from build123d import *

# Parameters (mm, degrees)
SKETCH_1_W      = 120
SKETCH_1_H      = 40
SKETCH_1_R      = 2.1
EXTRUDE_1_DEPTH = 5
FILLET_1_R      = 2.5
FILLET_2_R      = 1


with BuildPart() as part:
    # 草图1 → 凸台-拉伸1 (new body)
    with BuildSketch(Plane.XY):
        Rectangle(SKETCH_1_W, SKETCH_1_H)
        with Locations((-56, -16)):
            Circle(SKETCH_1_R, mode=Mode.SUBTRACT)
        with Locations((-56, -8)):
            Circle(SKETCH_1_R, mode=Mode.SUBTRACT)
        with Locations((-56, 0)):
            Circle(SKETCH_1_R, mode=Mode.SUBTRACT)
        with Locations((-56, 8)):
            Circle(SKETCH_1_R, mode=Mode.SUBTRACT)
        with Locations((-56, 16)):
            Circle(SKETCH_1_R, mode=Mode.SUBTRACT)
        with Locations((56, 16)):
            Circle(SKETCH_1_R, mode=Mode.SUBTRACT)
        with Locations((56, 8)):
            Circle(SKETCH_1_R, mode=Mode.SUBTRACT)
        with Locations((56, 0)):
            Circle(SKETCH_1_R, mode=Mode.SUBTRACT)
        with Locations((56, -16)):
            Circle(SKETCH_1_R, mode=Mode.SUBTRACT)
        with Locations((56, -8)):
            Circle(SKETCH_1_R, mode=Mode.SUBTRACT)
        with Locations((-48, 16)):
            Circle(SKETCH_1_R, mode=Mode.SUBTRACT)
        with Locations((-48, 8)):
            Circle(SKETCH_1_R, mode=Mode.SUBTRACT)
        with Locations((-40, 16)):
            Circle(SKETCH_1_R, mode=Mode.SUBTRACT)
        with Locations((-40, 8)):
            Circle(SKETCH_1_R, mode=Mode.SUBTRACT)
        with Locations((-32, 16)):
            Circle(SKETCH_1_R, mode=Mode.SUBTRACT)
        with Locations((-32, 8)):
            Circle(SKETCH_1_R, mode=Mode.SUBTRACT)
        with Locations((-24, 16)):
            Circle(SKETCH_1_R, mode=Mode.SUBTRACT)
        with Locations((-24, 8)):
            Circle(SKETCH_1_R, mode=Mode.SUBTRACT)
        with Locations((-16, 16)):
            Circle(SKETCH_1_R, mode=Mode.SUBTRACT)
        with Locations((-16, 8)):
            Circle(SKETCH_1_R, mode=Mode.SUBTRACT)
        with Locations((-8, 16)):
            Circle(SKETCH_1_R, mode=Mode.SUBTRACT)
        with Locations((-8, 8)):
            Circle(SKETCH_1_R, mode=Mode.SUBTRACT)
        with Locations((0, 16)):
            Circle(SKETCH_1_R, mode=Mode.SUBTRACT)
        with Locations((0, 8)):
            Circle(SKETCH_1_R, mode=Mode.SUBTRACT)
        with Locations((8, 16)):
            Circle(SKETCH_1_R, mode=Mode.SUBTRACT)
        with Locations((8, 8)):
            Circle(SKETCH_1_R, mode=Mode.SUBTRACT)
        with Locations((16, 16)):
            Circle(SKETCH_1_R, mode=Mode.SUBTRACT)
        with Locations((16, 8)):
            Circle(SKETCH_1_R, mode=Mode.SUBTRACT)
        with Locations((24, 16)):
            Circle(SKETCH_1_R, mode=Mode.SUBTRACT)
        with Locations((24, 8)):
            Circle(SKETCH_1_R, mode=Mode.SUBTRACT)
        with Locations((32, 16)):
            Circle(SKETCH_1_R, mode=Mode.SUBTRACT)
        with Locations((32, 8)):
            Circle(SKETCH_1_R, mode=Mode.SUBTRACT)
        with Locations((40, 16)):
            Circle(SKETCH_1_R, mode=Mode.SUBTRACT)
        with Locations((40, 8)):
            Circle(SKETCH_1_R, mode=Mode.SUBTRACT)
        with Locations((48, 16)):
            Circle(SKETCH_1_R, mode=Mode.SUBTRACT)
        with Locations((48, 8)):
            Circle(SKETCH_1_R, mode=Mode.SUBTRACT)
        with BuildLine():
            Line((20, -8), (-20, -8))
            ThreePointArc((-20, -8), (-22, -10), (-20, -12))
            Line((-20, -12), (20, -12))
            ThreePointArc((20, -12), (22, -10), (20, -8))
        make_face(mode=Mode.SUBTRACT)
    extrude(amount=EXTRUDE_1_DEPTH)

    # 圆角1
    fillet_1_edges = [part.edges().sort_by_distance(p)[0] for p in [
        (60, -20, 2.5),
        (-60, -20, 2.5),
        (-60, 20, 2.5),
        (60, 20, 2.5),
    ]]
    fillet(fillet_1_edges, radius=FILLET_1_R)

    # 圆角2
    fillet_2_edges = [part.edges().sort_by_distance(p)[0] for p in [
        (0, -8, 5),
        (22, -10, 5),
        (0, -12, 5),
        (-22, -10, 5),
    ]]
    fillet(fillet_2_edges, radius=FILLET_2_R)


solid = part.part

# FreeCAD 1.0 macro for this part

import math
import FreeCAD as App
import Part
import Sketcher

V = App.Vector


def edges_at(feature, points):
    """Names of the edges that pass closest to the given points."""
    edges = feature.Shape.Edges
    near = lambda p: min(range(len(edges)), key=lambda i: edges[i].distToShape(Part.Vertex(*p))[0])
    return sorted({f"Edge{near(p) + 1}" for p in points})

doc = App.newDocument("Part")
body = doc.addObject("PartDesign::Body", "Body")

# Sketch on XY plane
sketch1 = body.newObject("Sketcher::SketchObject", "Sketch")
sketch1.AttachmentSupport = (doc.getObject("XY_Plane"), [""])
sketch1.MapMode = "FlatFace"
sketch1.addGeometry([
    Part.LineSegment(V(-60, 20, 0), V(-60, -20, 0)),  # 0
    Part.LineSegment(V(-60, -20, 0), V(60, -20, 0)),  # 1
    Part.LineSegment(V(60, -20, 0), V(60, 20, 0)),  # 2
    Part.LineSegment(V(60, 20, 0), V(-60, 20, 0)),  # 3
    Part.Circle(V(-56, -16, 0), V(0, 0, 1), 2.1),  # 4
    Part.LineSegment(V(-20, -8, 0), V(20, -8, 0)),  # 5
    Part.ArcOfCircle(Part.Circle(V(20, -10, 0), V(0, 0, 1), 2), math.radians(-90), math.radians(90)),  # 6
    Part.LineSegment(V(20, -12, 0), V(-20, -12, 0)),  # 7
    Part.ArcOfCircle(Part.Circle(V(-20, -10, 0), V(0, 0, 1), 2), math.radians(90), math.radians(270)),  # 8
    Part.Circle(V(-56, -8, 0), V(0, 0, 1), 2.1),  # 9
    Part.Circle(V(56, -16, 0), V(0, 0, 1), 2.1),  # 10
    Part.Circle(V(56, -8, 0), V(0, 0, 1), 2.1),  # 11
    Part.Circle(V(-56, 0, 0), V(0, 0, 1), 2.1),  # 12
    Part.Circle(V(-56, 8, 0), V(0, 0, 1), 2.1),  # 13
    Part.Circle(V(-48, 8, 0), V(0, 0, 1), 2.1),  # 14
    Part.Circle(V(-40, 8, 0), V(0, 0, 1), 2.1),  # 15
    Part.Circle(V(-32, 8, 0), V(0, 0, 1), 2.1),  # 16
    Part.Circle(V(-24, 8, 0), V(0, 0, 1), 2.1),  # 17
    Part.Circle(V(-16, 8, 0), V(0, 0, 1), 2.1),  # 18
    Part.Circle(V(-8, 8, 0), V(0, 0, 1), 2.1),  # 19
    Part.Circle(V(0, 8, 0), V(0, 0, 1), 2.1),  # 20
    Part.Circle(V(-56, 16, 0), V(0, 0, 1), 2.1),  # 21
    Part.Circle(V(-48, 16, 0), V(0, 0, 1), 2.1),  # 22
    Part.Circle(V(-40, 16, 0), V(0, 0, 1), 2.1),  # 23
    Part.Circle(V(-32, 16, 0), V(0, 0, 1), 2.1),  # 24
    Part.Circle(V(-24, 16, 0), V(0, 0, 1), 2.1),  # 25
    Part.Circle(V(-16, 16, 0), V(0, 0, 1), 2.1),  # 26
    Part.Circle(V(-8, 16, 0), V(0, 0, 1), 2.1),  # 27
    Part.Circle(V(0, 16, 0), V(0, 0, 1), 2.1),  # 28
    Part.Circle(V(8, 8, 0), V(0, 0, 1), 2.1),  # 29
    Part.Circle(V(16, 8, 0), V(0, 0, 1), 2.1),  # 30
    Part.Circle(V(24, 8, 0), V(0, 0, 1), 2.1),  # 31
    Part.Circle(V(56, 0, 0), V(0, 0, 1), 2.1),  # 32
    Part.Circle(V(32, 8, 0), V(0, 0, 1), 2.1),  # 33
    Part.Circle(V(40, 8, 0), V(0, 0, 1), 2.1),  # 34
    Part.Circle(V(48, 8, 0), V(0, 0, 1), 2.1),  # 35
    Part.Circle(V(56, 8, 0), V(0, 0, 1), 2.1),  # 36
    Part.Circle(V(8, 16, 0), V(0, 0, 1), 2.1),  # 37
    Part.Circle(V(16, 16, 0), V(0, 0, 1), 2.1),  # 38
    Part.Circle(V(24, 16, 0), V(0, 0, 1), 2.1),  # 39
    Part.Circle(V(32, 16, 0), V(0, 0, 1), 2.1),  # 40
    Part.Circle(V(40, 16, 0), V(0, 0, 1), 2.1),  # 41
    Part.Circle(V(48, 16, 0), V(0, 0, 1), 2.1),  # 42
    Part.Circle(V(56, 16, 0), V(0, 0, 1), 2.1),  # 43
], False)
sketch1.addConstraint([
    Sketcher.Constraint("Coincident", 0, 2, 1, 1),
    Sketcher.Constraint("Coincident", 1, 2, 2, 1),
    Sketcher.Constraint("Coincident", 2, 2, 3, 1),
    Sketcher.Constraint("Coincident", 3, 2, 0, 1),
    Sketcher.Constraint("Tangent", 5, 2, 6, 2),
    Sketcher.Constraint("Tangent", 6, 1, 7, 1),
    Sketcher.Constraint("Tangent", 7, 2, 8, 2),
    Sketcher.Constraint("Tangent", 8, 1, 5, 1),
    Sketcher.Constraint("Vertical", 0),
    Sketcher.Constraint("Horizontal", 1),
    Sketcher.Constraint("Vertical", 2),
    Sketcher.Constraint("Horizontal", 3),
    Sketcher.Constraint("Horizontal", 5),
    Sketcher.Constraint("Horizontal", 7),
    Sketcher.Constraint("Equal", 4, 9),
    Sketcher.Constraint("Equal", 9, 10),
    Sketcher.Constraint("Equal", 10, 11),
    Sketcher.Constraint("Equal", 11, 12),
    Sketcher.Constraint("Equal", 12, 13),
    Sketcher.Constraint("Equal", 13, 14),
    Sketcher.Constraint("Equal", 14, 15),
    Sketcher.Constraint("Equal", 15, 16),
    Sketcher.Constraint("Equal", 16, 17),
    Sketcher.Constraint("Equal", 17, 18),
    Sketcher.Constraint("Equal", 18, 19),
    Sketcher.Constraint("Equal", 19, 20),
    Sketcher.Constraint("Equal", 20, 21),
    Sketcher.Constraint("Equal", 21, 22),
    Sketcher.Constraint("Equal", 22, 23),
    Sketcher.Constraint("Equal", 23, 24),
    Sketcher.Constraint("Equal", 24, 25),
    Sketcher.Constraint("Equal", 25, 26),
    Sketcher.Constraint("Equal", 26, 27),
    Sketcher.Constraint("Equal", 27, 28),
    Sketcher.Constraint("Equal", 28, 29),
    Sketcher.Constraint("Equal", 29, 30),
    Sketcher.Constraint("Equal", 30, 31),
    Sketcher.Constraint("Equal", 31, 32),
    Sketcher.Constraint("Equal", 32, 33),
    Sketcher.Constraint("Equal", 33, 34),
    Sketcher.Constraint("Equal", 34, 35),
    Sketcher.Constraint("Equal", 35, 36),
    Sketcher.Constraint("Equal", 36, 37),
    Sketcher.Constraint("Equal", 37, 38),
    Sketcher.Constraint("Equal", 38, 39),
    Sketcher.Constraint("Equal", 39, 40),
    Sketcher.Constraint("Equal", 40, 41),
    Sketcher.Constraint("Equal", 41, 42),
    Sketcher.Constraint("Equal", 42, 43),
    Sketcher.Constraint("Symmetric", 11, 3, 13, 3, -1, 1),
    Sketcher.Constraint("Symmetric", 10, 3, 21, 3, -1, 1),
    Sketcher.Constraint("Symmetric", 12, 3, 32, 3, -1, 1),
    Sketcher.Constraint("Symmetric", 9, 3, 36, 3, -1, 1),
    Sketcher.Constraint("Symmetric", 4, 3, 43, 3, -1, 1),
    Sketcher.Constraint("Symmetric", 0, 2, 2, 2, -1, 1),
    Sketcher.Constraint("Symmetric", 4, 3, 10, 3, -2),
    Sketcher.Constraint("Symmetric", 9, 3, 11, 3, -2),
    Sketcher.Constraint("Symmetric", 19, 3, 29, 3, -2),
    Sketcher.Constraint("Symmetric", 18, 3, 30, 3, -2),
    Sketcher.Constraint("Symmetric", 17, 3, 31, 3, -2),
    Sketcher.Constraint("Symmetric", 16, 3, 33, 3, -2),
    Sketcher.Constraint("Symmetric", 15, 3, 34, 3, -2),
    Sketcher.Constraint("Symmetric", 14, 3, 35, 3, -2),
    Sketcher.Constraint("Symmetric", 27, 3, 37, 3, -2),
    Sketcher.Constraint("Symmetric", 26, 3, 38, 3, -2),
    Sketcher.Constraint("Symmetric", 25, 3, 39, 3, -2),
    Sketcher.Constraint("Symmetric", 24, 3, 40, 3, -2),
    Sketcher.Constraint("Symmetric", 23, 3, 41, 3, -2),
    Sketcher.Constraint("Symmetric", 22, 3, 42, 3, -2),
    Sketcher.Constraint("PointOnObject", 12, 3, -1),
    Sketcher.Constraint("PointOnObject", 20, 3, -2),
    Sketcher.Constraint("PointOnObject", 28, 3, -2),
    Sketcher.Constraint("Horizontal", 13, 3, 14, 3),
    Sketcher.Constraint("Horizontal", 14, 3, 15, 3),
    Sketcher.Constraint("Horizontal", 15, 3, 16, 3),
    Sketcher.Constraint("Horizontal", 16, 3, 17, 3),
    Sketcher.Constraint("Horizontal", 17, 3, 18, 3),
    Sketcher.Constraint("Horizontal", 18, 3, 19, 3),
    Sketcher.Constraint("Horizontal", 19, 3, 20, 3),
    Sketcher.Constraint("Horizontal", 21, 3, 22, 3),
    Sketcher.Constraint("Horizontal", 22, 3, 23, 3),
    Sketcher.Constraint("Horizontal", 23, 3, 24, 3),
    Sketcher.Constraint("Horizontal", 24, 3, 25, 3),
    Sketcher.Constraint("Horizontal", 25, 3, 26, 3),
    Sketcher.Constraint("Horizontal", 26, 3, 27, 3),
    Sketcher.Constraint("Horizontal", 27, 3, 28, 3),
    Sketcher.Constraint("Horizontal", 11, 3, 5, 2),
    Sketcher.Constraint("Vertical", 4, 3, 9, 3),
    Sketcher.Constraint("Vertical", 9, 3, 12, 3),
    Sketcher.Constraint("Vertical", 14, 3, 22, 3),
    Sketcher.Constraint("Vertical", 15, 3, 23, 3),
    Sketcher.Constraint("Vertical", 16, 3, 24, 3),
    Sketcher.Constraint("Vertical", 17, 3, 25, 3),
    Sketcher.Constraint("Vertical", 18, 3, 26, 3),
    Sketcher.Constraint("Vertical", 19, 3, 27, 3),
    Sketcher.Constraint("Equal", 7, 0),
    Sketcher.Constraint("Radius", 6, 2.0),
    Sketcher.Constraint("Diameter", 4, 4.2),
    Sketcher.Constraint("DistanceX", 1, 1, 1, 2, 120.0),
    Sketcher.Constraint("DistanceX", 5, 1, 5, 2, 40.0),
    Sketcher.Constraint("DistanceX", 4, 3, -1, 1, 56.0),
    Sketcher.Constraint("DistanceY", 4, 3, -1, 1, 16.0),
    Sketcher.Constraint("DistanceX", -1, 1, 6, 3, 20.0),
    Sketcher.Constraint("DistanceY", 6, 3, -1, 1, 10.0),
    Sketcher.Constraint("DistanceX", 14, 3, -1, 1, 48.0),
    Sketcher.Constraint("DistanceX", 15, 3, -1, 1, 40.0),
    Sketcher.Constraint("DistanceX", 16, 3, -1, 1, 32.0),
    Sketcher.Constraint("DistanceX", 17, 3, -1, 1, 24.0),
    Sketcher.Constraint("DistanceX", 18, 3, -1, 1, 16.0),
    Sketcher.Constraint("DistanceX", 19, 3, -1, 1, 8.0),
])
pad1 = body.newObject("PartDesign::Pad", "Pad")
pad1.Profile = sketch1
pad1.Length = 5
doc.recompute()

fillet = body.newObject("PartDesign::Fillet", "Fillet")
fillet.Base = (pad1, edges_at(pad1, [
    (60, -20, 2.5),
    (-60, -20, 2.5),
    (-60, 20, 2.5),
    (60, 20, 2.5),
]))
fillet.Radius = 2.5
doc.recompute()

fillet2 = body.newObject("PartDesign::Fillet", "Fillet001")
fillet2.Base = (fillet, edges_at(fillet, [
    (0, -8, 5),
    (22, -10, 5),
    (0, -12, 5),
    (-22, -10, 5),
]))
fillet2.Radius = 1

doc.recompute()
